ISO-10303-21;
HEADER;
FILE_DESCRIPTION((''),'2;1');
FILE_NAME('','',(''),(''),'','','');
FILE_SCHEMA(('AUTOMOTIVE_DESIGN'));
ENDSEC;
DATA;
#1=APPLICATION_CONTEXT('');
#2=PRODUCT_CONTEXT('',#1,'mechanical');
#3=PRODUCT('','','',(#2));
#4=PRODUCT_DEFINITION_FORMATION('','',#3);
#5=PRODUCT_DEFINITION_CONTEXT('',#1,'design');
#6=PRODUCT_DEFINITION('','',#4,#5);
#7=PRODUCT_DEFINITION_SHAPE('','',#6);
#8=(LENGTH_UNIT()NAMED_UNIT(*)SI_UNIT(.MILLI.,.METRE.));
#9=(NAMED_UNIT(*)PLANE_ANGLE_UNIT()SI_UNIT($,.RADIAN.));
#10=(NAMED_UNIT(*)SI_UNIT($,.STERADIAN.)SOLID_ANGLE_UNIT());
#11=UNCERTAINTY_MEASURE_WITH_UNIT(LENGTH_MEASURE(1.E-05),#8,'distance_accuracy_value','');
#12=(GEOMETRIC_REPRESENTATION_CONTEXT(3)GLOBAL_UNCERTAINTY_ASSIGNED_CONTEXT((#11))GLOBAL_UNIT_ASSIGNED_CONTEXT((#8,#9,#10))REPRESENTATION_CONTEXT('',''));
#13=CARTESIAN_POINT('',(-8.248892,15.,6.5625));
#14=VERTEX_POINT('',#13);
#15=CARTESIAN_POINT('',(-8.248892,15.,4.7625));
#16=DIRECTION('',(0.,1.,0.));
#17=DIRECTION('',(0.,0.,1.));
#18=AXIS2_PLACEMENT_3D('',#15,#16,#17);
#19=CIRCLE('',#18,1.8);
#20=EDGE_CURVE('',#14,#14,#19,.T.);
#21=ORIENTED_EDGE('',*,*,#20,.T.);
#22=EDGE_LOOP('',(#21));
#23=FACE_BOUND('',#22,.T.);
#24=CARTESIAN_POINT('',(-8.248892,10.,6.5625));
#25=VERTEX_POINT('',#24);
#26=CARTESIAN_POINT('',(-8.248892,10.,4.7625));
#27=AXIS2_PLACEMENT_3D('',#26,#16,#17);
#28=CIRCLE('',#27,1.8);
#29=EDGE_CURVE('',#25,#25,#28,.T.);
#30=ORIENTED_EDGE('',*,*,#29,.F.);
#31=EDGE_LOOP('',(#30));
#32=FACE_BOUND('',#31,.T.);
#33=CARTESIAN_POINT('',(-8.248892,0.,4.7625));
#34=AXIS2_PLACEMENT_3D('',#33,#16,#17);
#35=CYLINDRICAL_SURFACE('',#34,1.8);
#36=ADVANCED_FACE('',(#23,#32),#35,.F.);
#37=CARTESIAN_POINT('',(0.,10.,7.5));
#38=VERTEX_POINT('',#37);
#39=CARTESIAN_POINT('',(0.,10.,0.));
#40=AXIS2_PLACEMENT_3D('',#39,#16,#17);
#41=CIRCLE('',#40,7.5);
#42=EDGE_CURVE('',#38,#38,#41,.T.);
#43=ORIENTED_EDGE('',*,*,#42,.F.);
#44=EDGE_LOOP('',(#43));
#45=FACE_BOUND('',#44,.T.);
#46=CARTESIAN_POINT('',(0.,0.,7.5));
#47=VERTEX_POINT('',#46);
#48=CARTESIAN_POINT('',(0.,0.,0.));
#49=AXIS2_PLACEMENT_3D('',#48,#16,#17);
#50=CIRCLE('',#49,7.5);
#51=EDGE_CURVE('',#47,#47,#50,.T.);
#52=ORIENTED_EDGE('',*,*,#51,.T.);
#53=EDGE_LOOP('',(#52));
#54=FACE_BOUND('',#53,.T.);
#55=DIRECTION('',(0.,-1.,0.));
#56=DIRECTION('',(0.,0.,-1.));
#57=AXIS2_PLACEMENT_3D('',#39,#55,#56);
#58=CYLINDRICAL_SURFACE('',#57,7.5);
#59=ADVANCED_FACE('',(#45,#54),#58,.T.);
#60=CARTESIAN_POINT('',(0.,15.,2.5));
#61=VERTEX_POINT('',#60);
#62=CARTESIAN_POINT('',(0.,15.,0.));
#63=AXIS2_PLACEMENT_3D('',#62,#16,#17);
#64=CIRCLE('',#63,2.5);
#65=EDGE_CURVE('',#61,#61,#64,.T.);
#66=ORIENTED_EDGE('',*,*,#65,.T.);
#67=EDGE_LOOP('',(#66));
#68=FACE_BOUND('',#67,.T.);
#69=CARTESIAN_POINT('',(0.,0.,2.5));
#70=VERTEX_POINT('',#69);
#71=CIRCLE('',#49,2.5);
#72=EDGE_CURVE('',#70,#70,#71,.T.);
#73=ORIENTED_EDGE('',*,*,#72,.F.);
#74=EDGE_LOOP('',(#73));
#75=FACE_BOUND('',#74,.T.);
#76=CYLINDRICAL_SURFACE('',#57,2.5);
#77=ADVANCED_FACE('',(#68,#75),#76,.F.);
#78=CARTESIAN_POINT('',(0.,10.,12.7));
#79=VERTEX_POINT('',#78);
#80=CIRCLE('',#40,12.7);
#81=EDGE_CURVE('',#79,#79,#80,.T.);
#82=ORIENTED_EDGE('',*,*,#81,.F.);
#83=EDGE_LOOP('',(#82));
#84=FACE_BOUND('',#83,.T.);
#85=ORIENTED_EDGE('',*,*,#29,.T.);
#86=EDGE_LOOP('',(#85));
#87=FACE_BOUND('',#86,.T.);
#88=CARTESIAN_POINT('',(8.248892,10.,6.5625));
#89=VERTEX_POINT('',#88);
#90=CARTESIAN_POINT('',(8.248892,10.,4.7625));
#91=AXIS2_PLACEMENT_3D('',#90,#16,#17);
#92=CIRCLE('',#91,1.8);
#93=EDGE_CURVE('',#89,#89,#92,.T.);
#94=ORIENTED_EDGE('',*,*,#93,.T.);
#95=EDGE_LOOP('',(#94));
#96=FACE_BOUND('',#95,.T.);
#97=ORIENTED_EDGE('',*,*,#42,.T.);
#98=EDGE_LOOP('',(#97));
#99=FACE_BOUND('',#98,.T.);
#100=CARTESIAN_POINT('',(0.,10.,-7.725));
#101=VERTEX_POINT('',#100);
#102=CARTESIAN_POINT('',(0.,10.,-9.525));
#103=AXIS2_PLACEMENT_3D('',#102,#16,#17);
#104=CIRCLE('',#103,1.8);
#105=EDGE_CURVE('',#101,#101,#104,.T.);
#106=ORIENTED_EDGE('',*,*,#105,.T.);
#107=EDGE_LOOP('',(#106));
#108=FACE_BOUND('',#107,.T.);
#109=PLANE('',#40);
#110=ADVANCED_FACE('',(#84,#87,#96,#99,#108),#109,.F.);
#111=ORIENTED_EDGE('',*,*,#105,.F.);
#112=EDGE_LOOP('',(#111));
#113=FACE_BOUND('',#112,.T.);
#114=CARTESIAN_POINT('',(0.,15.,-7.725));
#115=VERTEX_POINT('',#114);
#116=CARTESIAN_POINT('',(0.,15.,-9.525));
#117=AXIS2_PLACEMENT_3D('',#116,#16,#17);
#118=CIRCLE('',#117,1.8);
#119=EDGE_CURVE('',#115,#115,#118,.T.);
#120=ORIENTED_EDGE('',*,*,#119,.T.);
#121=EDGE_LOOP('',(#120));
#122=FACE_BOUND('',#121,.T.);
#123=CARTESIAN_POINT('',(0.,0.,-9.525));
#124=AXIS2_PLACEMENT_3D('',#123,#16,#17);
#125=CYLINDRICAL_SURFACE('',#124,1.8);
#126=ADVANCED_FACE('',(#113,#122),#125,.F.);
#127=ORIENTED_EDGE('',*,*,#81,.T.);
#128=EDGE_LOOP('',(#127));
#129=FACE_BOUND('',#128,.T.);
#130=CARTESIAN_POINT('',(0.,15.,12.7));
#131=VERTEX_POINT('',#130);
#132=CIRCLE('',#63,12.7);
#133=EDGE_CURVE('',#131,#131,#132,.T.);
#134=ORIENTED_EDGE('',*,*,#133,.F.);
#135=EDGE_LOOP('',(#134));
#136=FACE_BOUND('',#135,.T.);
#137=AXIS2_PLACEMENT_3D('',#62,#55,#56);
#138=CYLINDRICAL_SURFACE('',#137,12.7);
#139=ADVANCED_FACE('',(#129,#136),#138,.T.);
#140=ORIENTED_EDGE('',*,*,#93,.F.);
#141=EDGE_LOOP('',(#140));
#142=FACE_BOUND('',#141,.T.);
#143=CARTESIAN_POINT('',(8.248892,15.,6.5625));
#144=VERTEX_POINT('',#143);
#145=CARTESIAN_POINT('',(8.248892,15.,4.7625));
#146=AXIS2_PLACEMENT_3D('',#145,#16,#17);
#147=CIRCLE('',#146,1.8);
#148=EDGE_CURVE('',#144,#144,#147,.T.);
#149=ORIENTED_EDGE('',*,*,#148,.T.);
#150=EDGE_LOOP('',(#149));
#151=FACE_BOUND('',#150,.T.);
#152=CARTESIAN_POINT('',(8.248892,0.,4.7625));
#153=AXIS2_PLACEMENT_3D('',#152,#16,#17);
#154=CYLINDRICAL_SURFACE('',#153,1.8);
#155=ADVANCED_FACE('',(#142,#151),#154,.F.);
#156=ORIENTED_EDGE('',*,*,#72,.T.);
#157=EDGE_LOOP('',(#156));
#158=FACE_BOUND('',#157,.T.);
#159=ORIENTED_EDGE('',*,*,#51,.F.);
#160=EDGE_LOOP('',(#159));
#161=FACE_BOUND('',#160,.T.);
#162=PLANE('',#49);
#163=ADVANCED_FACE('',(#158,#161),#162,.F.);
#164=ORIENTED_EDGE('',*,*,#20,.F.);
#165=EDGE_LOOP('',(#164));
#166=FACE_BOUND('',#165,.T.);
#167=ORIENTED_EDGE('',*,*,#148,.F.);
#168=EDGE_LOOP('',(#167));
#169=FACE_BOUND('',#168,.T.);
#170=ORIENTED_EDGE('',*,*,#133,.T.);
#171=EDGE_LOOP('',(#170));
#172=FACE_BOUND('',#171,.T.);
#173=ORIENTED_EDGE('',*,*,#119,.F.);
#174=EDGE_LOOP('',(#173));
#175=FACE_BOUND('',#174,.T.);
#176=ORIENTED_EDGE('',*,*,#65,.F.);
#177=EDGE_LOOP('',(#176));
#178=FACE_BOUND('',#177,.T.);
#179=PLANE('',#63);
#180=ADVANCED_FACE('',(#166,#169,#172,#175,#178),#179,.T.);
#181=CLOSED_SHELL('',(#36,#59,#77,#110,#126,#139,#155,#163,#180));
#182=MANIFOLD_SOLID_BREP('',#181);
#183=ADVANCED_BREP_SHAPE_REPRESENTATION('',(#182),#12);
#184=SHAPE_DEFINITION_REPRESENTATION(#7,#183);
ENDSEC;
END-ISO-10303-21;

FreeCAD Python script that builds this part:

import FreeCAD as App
import Part
import Sketcher
from FreeCAD import Vector

doc = App.newDocument("Part")
body = doc.addObject("PartDesign::Body", "Body")

# Sketch on XZ plane
sketch1 = doc.addObject("Sketcher::SketchObject", "Sketch")
body.addObject(sketch1)
sketch1.AttachmentSupport = (doc.XZ_Plane, [""])
sketch1.MapMode = "FlatFace"
sketch1.addGeometry([
    Part.Circle(Vector(0, 0, 0), Vector(0, 0, 1), 7.5),
    Part.Circle(Vector(0, 0, 0), Vector(0, 0, 1), 2.5),
], False)
sketch1.addConstraint([
    Sketcher.Constraint("Coincident", 0, 3, -1, 1),
    Sketcher.Constraint("Coincident", 1, 3, -1, 1),
    Sketcher.Constraint("Diameter", 0, 15.0),
    Sketcher.Constraint("Diameter", 1, 5.0),
])
pad1 = doc.addObject("PartDesign::Pad", "Pad")
body.addObject(pad1)
pad1.Profile = sketch1
pad1.Length = 10
pad1.Reversed = True

# Sketch on XZ plane
sketch2 = doc.addObject("Sketcher::SketchObject", "Sketch001")
body.addObject(sketch2)
sketch2.AttachmentSupport = (doc.XZ_Plane, [""])
sketch2.MapMode = "FlatFace"
sketch2.AttachmentOffset = App.Placement(Vector(0, 0, -10), App.Rotation())
sketch2.addGeometry([
    Part.Circle(Vector(0, 0, 0), Vector(0, 0, 1), 12.7),
    Part.Circle(Vector(0, 0, 0), Vector(0, 0, 1), 2.5),
], False)
sketch2.addConstraint([
    Sketcher.Constraint("Coincident", 0, 3, -1, 1),
    Sketcher.Constraint("Coincident", 1, 3, -1, 1),
    Sketcher.Constraint("Diameter", 1, 5.0),
    Sketcher.Constraint("Diameter", 0, 25.4),
])
pad2 = doc.addObject("PartDesign::Pad", "Pad001")
body.addObject(pad2)
pad2.Profile = sketch2
pad2.Length = 5
pad2.Reversed = True

# Sketch on XZ plane
sketch3 = doc.addObject("Sketcher::SketchObject", "Sketch002")
body.addObject(sketch3)
sketch3.AttachmentSupport = (doc.XZ_Plane, [""])
sketch3.MapMode = "FlatFace"
sketch3.AttachmentOffset = App.Placement(Vector(0, 0, -15), App.Rotation())
sketch3.addGeometry([
    Part.Circle(Vector(0, -9.5, 0), Vector(0, 0, 1), 1.8),
    Part.Circle(Vector(8.2, 4.8, 0), Vector(0, 0, 1), 1.8),
    Part.Circle(Vector(-8.2, 4.8, 0), Vector(0, 0, 1), 1.8),
], False)
sketch3.addConstraint([
    Sketcher.Constraint("Equal", 0, 1),
    Sketcher.Constraint("Equal", 1, 2),
    Sketcher.Constraint("Symmetric", 1, 3, 2, 3, -2),
    Sketcher.Constraint("PointOnObject", 0, 3, -2),
    Sketcher.Constraint("Diameter", 0, 3.6),
    Sketcher.Constraint("DistanceY", 0, 3, -1, 1, 9.525),
    Sketcher.Constraint("DistanceY", -1, 1, 1, 3, 4.7625),
    Sketcher.Constraint("DistanceX", -1, 1, 1, 3, 8.248892),
])
pocket1 = doc.addObject("PartDesign::Pocket", "Pocket")
body.addObject(pocket1)
pocket1.Profile = sketch3
pocket1.Type = "ThroughAll"
pocket1.Reversed = True

doc.recompute()
